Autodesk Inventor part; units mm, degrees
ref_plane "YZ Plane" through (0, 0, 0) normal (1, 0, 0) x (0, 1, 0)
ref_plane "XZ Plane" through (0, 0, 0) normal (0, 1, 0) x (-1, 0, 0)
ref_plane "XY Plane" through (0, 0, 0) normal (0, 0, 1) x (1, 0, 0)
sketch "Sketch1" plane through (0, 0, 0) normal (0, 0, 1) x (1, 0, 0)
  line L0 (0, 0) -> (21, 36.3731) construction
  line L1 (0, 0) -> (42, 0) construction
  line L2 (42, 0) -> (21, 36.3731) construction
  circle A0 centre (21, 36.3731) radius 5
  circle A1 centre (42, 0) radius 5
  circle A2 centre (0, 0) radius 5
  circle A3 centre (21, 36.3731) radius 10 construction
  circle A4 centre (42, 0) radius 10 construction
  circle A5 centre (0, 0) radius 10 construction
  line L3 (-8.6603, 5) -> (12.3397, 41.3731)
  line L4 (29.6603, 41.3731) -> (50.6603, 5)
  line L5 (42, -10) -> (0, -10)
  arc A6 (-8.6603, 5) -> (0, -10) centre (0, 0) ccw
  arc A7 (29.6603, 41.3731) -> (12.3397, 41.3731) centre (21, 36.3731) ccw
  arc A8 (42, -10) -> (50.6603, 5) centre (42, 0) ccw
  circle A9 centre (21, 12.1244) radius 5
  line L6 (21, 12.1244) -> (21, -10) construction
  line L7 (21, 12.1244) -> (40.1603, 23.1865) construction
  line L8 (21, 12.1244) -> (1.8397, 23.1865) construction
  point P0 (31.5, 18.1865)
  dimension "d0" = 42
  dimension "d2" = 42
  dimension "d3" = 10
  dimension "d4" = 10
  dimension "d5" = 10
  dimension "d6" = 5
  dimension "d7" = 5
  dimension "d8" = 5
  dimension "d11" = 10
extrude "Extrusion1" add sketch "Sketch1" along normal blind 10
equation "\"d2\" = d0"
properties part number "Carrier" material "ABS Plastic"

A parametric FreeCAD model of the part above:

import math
import FreeCAD as App
import Part
import Sketcher
Q = App.Units.Quantity

doc = App.newDocument("Part")
body = doc.addObject("PartDesign::Body", "Body")

sketch1 = body.newObject("Sketcher::SketchObject", "Sketch")
sketch1.AttachmentSupport = (doc.getObject("XY_Plane"), [""])
sketch1.MapMode = "FlatFace"
sketch1.addGeometry([
    Part.LineSegment(App.Vector(12, 41, 0), App.Vector(-9, 5, 0)),
    Part.ArcOfCircle(Part.Circle(App.Vector(0, 0, 0), App.Vector(0, 0, 1), 10), math.radians(150), math.radians(270)),
    Part.LineSegment(App.Vector(0, -10, 0), App.Vector(42, -10, 0)),
    Part.ArcOfCircle(Part.Circle(App.Vector(42, 0, 0), App.Vector(0, 0, 1), 10), math.radians(-90), math.radians(30)),
    Part.LineSegment(App.Vector(51, 5, 0), App.Vector(30, 41, 0)),
    Part.ArcOfCircle(Part.Circle(App.Vector(21, 36, 0), App.Vector(0, 0, 1), 10), math.radians(30), math.radians(150)),
    Part.Circle(App.Vector(0, 0, 0), App.Vector(0, 0, 1), 5),
    Part.Circle(App.Vector(42, 0, 0), App.Vector(0, 0, 1), 5),
    Part.Circle(App.Vector(21, 12, 0), App.Vector(0, 0, 1), 5),
    Part.Circle(App.Vector(21, 36, 0), App.Vector(0, 0, 1), 5),
], False)
sketch1.addConstraint([
    Sketcher.Constraint("Tangent", 0, 2, 1, 1),
    Sketcher.Constraint("Tangent", 1, 2, 2, 1),
    Sketcher.Constraint("Tangent", 2, 2, 3, 1),
    Sketcher.Constraint("Tangent", 3, 2, 4, 1),
    Sketcher.Constraint("Tangent", 4, 2, 5, 1),
    Sketcher.Constraint("Tangent", 5, 2, 0, 1),
    Sketcher.Constraint("Horizontal", 2),
    Sketcher.Constraint("Coincident", 1, 3, -1, 1),
    Sketcher.Constraint("Coincident", 6, 3, -1, 1),
    Sketcher.Constraint("Coincident", 7, 3, 3, 3),
    Sketcher.Constraint("Coincident", 9, 3, 5, 3),
    Sketcher.Constraint("Equal", 1, 3),
    Sketcher.Constraint("Equal", 3, 5),
    Sketcher.Constraint("Equal", 6, 7),
    Sketcher.Constraint("Equal", 7, 8),
    Sketcher.Constraint("Equal", 8, 9),
    Sketcher.Constraint("Horizontal", 0, 2, 3, 2),
    Sketcher.Constraint("Vertical", 5, 3, 8, 3),
    Sketcher.Constraint("Diameter", 6, Q("10 mm")),
    Sketcher.Constraint("Radius", 1, Q("10 mm")),
    Sketcher.Constraint("DistanceX", 2, 1, 2, 2, Q("42 mm")),
    Sketcher.Constraint("Distance", 0, Q("42 mm")),
    Sketcher.Constraint("DistanceY", -1, 1, 8, 3, Q("12.1244 mm")),
])
pad1 = body.newObject("PartDesign::Pad", "Pad")
pad1.Profile = sketch1
pad1.Length = 10

doc.recompute()
